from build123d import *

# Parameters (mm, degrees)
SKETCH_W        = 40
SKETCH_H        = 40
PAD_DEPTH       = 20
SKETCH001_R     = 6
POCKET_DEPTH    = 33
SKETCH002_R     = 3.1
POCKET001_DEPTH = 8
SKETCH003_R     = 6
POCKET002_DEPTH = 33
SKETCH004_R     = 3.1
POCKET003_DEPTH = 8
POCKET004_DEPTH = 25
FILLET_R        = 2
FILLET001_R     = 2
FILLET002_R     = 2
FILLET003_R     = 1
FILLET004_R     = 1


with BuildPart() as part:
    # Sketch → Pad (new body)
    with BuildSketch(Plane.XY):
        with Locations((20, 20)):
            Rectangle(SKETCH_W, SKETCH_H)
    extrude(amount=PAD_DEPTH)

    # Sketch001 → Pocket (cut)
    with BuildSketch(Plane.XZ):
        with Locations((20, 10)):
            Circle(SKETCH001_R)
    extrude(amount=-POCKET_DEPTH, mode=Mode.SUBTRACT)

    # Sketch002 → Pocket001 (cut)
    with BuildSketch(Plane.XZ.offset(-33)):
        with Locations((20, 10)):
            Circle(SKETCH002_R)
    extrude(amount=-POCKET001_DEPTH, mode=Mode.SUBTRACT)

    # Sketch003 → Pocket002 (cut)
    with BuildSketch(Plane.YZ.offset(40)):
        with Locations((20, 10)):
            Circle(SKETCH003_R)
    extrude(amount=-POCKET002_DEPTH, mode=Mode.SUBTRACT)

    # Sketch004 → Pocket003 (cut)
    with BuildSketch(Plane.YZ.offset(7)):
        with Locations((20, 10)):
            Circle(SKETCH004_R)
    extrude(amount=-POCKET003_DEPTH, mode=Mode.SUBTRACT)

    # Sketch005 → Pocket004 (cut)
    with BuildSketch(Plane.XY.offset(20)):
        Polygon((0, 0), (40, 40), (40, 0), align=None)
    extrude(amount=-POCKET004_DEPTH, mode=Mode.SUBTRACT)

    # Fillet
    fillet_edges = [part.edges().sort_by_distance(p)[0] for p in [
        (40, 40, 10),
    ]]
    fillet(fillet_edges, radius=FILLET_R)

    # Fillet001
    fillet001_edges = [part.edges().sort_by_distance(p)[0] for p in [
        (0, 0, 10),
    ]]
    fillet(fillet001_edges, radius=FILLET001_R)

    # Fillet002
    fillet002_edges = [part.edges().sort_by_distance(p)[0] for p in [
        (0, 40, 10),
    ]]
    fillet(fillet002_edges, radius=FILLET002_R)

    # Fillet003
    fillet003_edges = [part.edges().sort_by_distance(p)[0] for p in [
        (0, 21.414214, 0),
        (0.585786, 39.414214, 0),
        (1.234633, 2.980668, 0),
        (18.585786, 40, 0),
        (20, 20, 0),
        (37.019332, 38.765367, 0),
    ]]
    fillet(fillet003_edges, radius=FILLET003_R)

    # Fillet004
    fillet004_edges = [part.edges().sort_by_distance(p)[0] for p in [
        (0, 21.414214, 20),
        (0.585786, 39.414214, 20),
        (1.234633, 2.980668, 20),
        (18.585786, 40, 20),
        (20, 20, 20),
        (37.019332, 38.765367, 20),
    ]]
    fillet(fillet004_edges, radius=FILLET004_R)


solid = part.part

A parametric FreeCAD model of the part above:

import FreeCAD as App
import Part
import Sketcher


def edges_at(feature, points):
    """Names of the edges that pass closest to the given points."""
    edges = feature.Shape.Edges
    near = lambda p: min(range(len(edges)), key=lambda i: edges[i].distToShape(Part.Vertex(*p))[0])
    return sorted({f"Edge{near(p) + 1}" for p in points})


def add_polygon(sketch, points):
    """Adds a closed chain of lines whose ends are joined by coincident constraints."""
    first, n = sketch.GeometryCount, len(points)
    for a, b in zip(points, points[1:] + points[:1]):
        sketch.addGeometry(Part.LineSegment(App.Vector(*a, 0), App.Vector(*b, 0)), False)
    for i in range(n):
        sketch.addConstraint(Sketcher.Constraint("Coincident", first + i, 2, first + (i + 1) % n, 1))

doc = App.newDocument("Part")
body = doc.addObject("PartDesign::Body", "Body")

sketch1 = body.newObject("Sketcher::SketchObject", "Sketch")
sketch1.AttachmentSupport = (doc.getObject("XY_Plane"), [""])
sketch1.MapMode = "FlatFace"
add_polygon(sketch1, [(0, 40), (0, 0), (40, 0), (40, 40)])
sketch1.addConstraint(Sketcher.Constraint("Vertical", 0))
sketch1.addConstraint(Sketcher.Constraint("Horizontal", 1))
sketch1.addConstraint(Sketcher.Constraint("Vertical", 2))
sketch1.addConstraint(Sketcher.Constraint("Horizontal", 3))
sketch1.addConstraint(Sketcher.Constraint("Coincident", 0, 2, -1, 1))
sketch1.addConstraint(Sketcher.Constraint("Equal", 3, 0))
sketch1.addConstraint(Sketcher.Constraint("DistanceX", 1, 1, 1, 2, 40.0))
pad1 = body.newObject("PartDesign::Pad", "Pad")
pad1.Profile = sketch1
pad1.Length = 20

sketch2 = body.newObject("Sketcher::SketchObject", "Sketch001")
sketch2.AttachmentSupport = (doc.getObject("XZ_Plane"), [""])
sketch2.MapMode = "FlatFace"
sketch2.addGeometry(Part.Circle(App.Vector(20, 10, 0), App.Vector(0, 0, 1), 6), False)
sketch2.addConstraint(Sketcher.Constraint("Diameter", 0, 12.0))
sketch2.addConstraint(Sketcher.Constraint("DistanceX", -1, 1, 0, 3, 20.0))
sketch2.addConstraint(Sketcher.Constraint("DistanceY", -1, 1, 0, 3, 10.0))
pocket1 = body.newObject("PartDesign::Pocket", "Pocket")
pocket1.Profile = sketch2
pocket1.Length = 33

sketch3 = body.newObject("Sketcher::SketchObject", "Sketch002")
sketch3.AttachmentSupport = (doc.getObject("XZ_Plane"), [""])
sketch3.MapMode = "FlatFace"
sketch3.AttachmentOffset = App.Placement(App.Vector(0, 0, -33), App.Rotation())
sketch3.addGeometry(Part.Circle(App.Vector(20, 10, 0), App.Vector(0, 0, 1), 3.1), False)
sketch3.addConstraint(Sketcher.Constraint("Diameter", 0, 6.2))
sketch3.addConstraint(Sketcher.Constraint("DistanceX", -1, 1, 0, 3, 20.0))
sketch3.addConstraint(Sketcher.Constraint("DistanceY", -1, 1, 0, 3, 10.0))
pocket2 = body.newObject("PartDesign::Pocket", "Pocket001")
pocket2.Profile = sketch3
pocket2.Length = 8

sketch4 = body.newObject("Sketcher::SketchObject", "Sketch003")
sketch4.AttachmentSupport = (doc.getObject("YZ_Plane"), [""])
sketch4.MapMode = "FlatFace"
sketch4.AttachmentOffset = App.Placement(App.Vector(0, 0, 40), App.Rotation())
sketch4.addGeometry(Part.Circle(App.Vector(20, 10, 0), App.Vector(0, 0, 1), 6), False)
sketch4.addConstraint(Sketcher.Constraint("Diameter", 0, 12.0))
sketch4.addConstraint(Sketcher.Constraint("DistanceX", -1, 1, 0, 3, 20.0))
sketch4.addConstraint(Sketcher.Constraint("DistanceY", -1, 1, 0, 3, 10.0))
pocket3 = body.newObject("PartDesign::Pocket", "Pocket002")
pocket3.Profile = sketch4
pocket3.Length = 33

sketch5 = body.newObject("Sketcher::SketchObject", "Sketch004")
sketch5.AttachmentSupport = (doc.getObject("YZ_Plane"), [""])
sketch5.MapMode = "FlatFace"
sketch5.AttachmentOffset = App.Placement(App.Vector(0, 0, 7), App.Rotation())
sketch5.addGeometry(Part.Circle(App.Vector(20, 10, 0), App.Vector(0, 0, 1), 3.1), False)
sketch5.addConstraint(Sketcher.Constraint("Diameter", 0, 6.2))
sketch5.addConstraint(Sketcher.Constraint("DistanceX", -1, 1, 0, 3, 20.0))
sketch5.addConstraint(Sketcher.Constraint("DistanceY", -1, 1, 0, 3, 10.0))
pocket4 = body.newObject("PartDesign::Pocket", "Pocket003")
pocket4.Profile = sketch5
pocket4.Length = 8

sketch6 = body.newObject("Sketcher::SketchObject", "Sketch005")
sketch6.AttachmentSupport = (doc.getObject("XY_Plane"), [""])
sketch6.MapMode = "FlatFace"
sketch6.AttachmentOffset = App.Placement(App.Vector(0, 0, 20), App.Rotation())
add_polygon(sketch6, [(40, 40), (0, 0), (40, 0)])
sketch6.addConstraint(Sketcher.Constraint("Horizontal", 1))
sketch6.addConstraint(Sketcher.Constraint("Vertical", 2))
sketch6.addConstraint(Sketcher.Constraint("Coincident", 0, 2, -1, 1))
sketch6.addConstraint(Sketcher.Constraint("Equal", 1, 2))
sketch6.addConstraint(Sketcher.Constraint("DistanceX", 1, 1, 1, 2, 40.0))
pocket5 = body.newObject("PartDesign::Pocket", "Pocket004")
pocket5.Profile = sketch6
pocket5.Length = 25
doc.recompute()

fillet = body.newObject("PartDesign::Fillet", "Fillet")
fillet.Base = (pocket5, edges_at(pocket5, [(40, 40, 10)]))
fillet.Radius = 2
doc.recompute()

fillet2 = body.newObject("PartDesign::Fillet", "Fillet001")
fillet2.Base = (fillet, edges_at(fillet, [(0, 0, 10)]))
fillet2.Radius = 2
doc.recompute()

fillet3 = body.newObject("PartDesign::Fillet", "Fillet002")
fillet3.Base = (fillet2, edges_at(fillet2, [(0, 40, 10)]))
fillet3.Radius = 2
doc.recompute()

fillet4 = body.newObject("PartDesign::Fillet", "Fillet003")
fillet4.Base = (fillet3, edges_at(fillet3, [
    (0, 21.414, 0),
    (0.586, 39.414, 0),
    (1.235, 2.981, 0),
    (18.586, 40, 0),
    (20, 20, 0),
    (37.019, 38.765, 0),
]))
fillet4.Radius = 1
doc.recompute()

fillet5 = body.newObject("PartDesign::Fillet", "Fillet004")
fillet5.Base = (fillet4, edges_at(fillet4, [
    (0, 21.414, 20),
    (0.586, 39.414, 20),
    (1.235, 2.981, 20),
    (18.586, 40, 20),
    (20, 20, 20),
    (37.019, 38.765, 20),
]))
fillet5.Radius = 1

doc.recompute()
